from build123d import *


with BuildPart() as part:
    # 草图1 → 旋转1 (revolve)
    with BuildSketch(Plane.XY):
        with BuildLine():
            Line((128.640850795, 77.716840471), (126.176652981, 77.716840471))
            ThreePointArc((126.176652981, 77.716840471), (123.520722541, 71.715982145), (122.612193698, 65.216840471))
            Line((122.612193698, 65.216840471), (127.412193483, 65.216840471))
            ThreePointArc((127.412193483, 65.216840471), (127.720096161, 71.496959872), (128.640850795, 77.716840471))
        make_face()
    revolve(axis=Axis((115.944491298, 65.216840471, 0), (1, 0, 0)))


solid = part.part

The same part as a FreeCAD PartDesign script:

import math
import FreeCAD as App
import Part
import Sketcher

V = App.Vector
Q = App.Units.Quantity

doc = App.newDocument("Part")
body = doc.addObject("PartDesign::Body", "Body")

sketch1 = doc.addObject("Sketcher::SketchObject", "Sketch")
body.addObject(sketch1)
sketch1.AttachmentSupport = (doc.XY_Plane, [""])
sketch1.MapMode = "FlatFace"
sketch1.addGeometry(Part.LineSegment(V(128.640851, 77.71684, 0), V(126.176653, 77.71684, 0)), False)
sketch1.addGeometry(Part.ArcOfCircle(Part.Circle(V(146.312194, 65.21684, 0), V(0, 0, 1), 23.7), math.radians(148.168285), math.radians(180)), False)
sketch1.addGeometry(Part.LineSegment(V(122.612194, 65.21684, 0), V(127.412193, 65.21684, 0)), False)
sketch1.addGeometry(Part.ArcOfCircle(Part.Circle(V(191.612194, 65.21684, 0), V(0, 0, 1), 64.2), math.radians(168.772564), math.radians(180)), False)
sketch1.addGeometry(Part.LineSegment(V(122.612194, 65.21684, 0), V(191.612194, 65.21684, 0)), True)
sketch1.addConstraint(Sketcher.Constraint("Coincident", 0, 2, 1, 1))
sketch1.addConstraint(Sketcher.Constraint("Coincident", 1, 2, 2, 1))
sketch1.addConstraint(Sketcher.Constraint("Coincident", 2, 2, 3, 2))
sketch1.addConstraint(Sketcher.Constraint("Coincident", 3, 1, 0, 1))
sketch1.addConstraint(Sketcher.Constraint("Horizontal", 0))
sketch1.addConstraint(Sketcher.Constraint("Horizontal", 2))
sketch1.addConstraint(Sketcher.Constraint("Horizontal", 4))
sketch1.addConstraint(Sketcher.Constraint("Coincident", 4, 1, 1, 2))
sketch1.addConstraint(Sketcher.Constraint("Coincident", 4, 2, 3, 3))
sketch1.addConstraint(Sketcher.Constraint("Horizontal", 1, 3, 3, 3))
sketch1.addConstraint(Sketcher.Constraint("Radius", 1, Q("23.7 mm")))
sketch1.addConstraint(Sketcher.Constraint("Radius", 3, Q("64.2 mm")))
sketch1.addConstraint(Sketcher.Constraint("DistanceX", 4, 1, 4, 2, Q("69 mm")))
sketch1.addConstraint(Sketcher.Constraint("DistanceY", 1, 3, 0, 2, Q("12.5 mm")))
sketch1.addConstraint(Sketcher.Constraint("DistanceY", -1, 1, 1, 3, Q("65.21684 mm")))
sketch1.addConstraint(Sketcher.Constraint("DistanceX", -1, 1, 3, 1, Q("128.640851 mm")))
revolution = doc.addObject("PartDesign::Revolution", "Revolution")
body.addObject(revolution)
revolution.Profile = sketch1
revolution.ReferenceAxis = (sketch1, ["Axis0"])
revolution.Angle = 360

doc.recompute()
